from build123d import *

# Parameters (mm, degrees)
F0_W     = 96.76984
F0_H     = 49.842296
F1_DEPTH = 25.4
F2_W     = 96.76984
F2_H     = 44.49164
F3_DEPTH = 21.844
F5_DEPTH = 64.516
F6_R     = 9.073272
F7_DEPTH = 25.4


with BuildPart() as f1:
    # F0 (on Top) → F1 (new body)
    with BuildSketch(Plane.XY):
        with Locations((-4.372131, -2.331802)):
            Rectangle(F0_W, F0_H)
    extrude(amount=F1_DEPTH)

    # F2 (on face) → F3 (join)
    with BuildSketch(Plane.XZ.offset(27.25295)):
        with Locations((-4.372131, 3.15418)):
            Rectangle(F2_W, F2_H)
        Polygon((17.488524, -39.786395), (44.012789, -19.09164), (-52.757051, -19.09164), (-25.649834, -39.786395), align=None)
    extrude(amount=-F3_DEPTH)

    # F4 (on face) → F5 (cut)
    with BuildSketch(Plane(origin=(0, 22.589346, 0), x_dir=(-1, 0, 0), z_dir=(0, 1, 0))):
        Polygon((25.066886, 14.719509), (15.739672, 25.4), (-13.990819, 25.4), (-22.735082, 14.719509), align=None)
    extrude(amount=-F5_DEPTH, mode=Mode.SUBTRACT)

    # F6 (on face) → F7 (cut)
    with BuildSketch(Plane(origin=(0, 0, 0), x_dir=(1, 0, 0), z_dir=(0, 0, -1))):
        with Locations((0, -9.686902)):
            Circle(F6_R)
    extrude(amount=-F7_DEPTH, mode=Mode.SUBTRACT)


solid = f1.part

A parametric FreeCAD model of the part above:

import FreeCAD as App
import Part
import Sketcher
from FreeCAD import Vector
Q = App.Units.Quantity

doc = App.newDocument("Part")
body = doc.addObject("PartDesign::Body", "Body")

# Sketch on XY plane
sketch1 = body.newObject("Sketcher::SketchObject", "Sketch")
sketch1.AttachmentSupport = (doc.getObject("XY_Plane"), [""])
sketch1.MapMode = "FlatFace"
sketch1.addGeometry(Part.LineSegment(Vector(-52.757051, 22.589346, 0), Vector(-52.757051, -27.25295, 0)), False)
sketch1.addGeometry(Part.LineSegment(Vector(-52.757051, -27.25295, 0), Vector(44.012789, -27.25295, 0)), False)
sketch1.addGeometry(Part.LineSegment(Vector(44.012789, -27.25295, 0), Vector(44.012789, 22.589346, 0)), False)
sketch1.addGeometry(Part.LineSegment(Vector(44.012789, 22.589346, 0), Vector(-52.757051, 22.589346, 0)), False)
sketch1.addConstraint(Sketcher.Constraint("Coincident", 0, 2, 1, 1))
sketch1.addConstraint(Sketcher.Constraint("Coincident", 1, 2, 2, 1))
sketch1.addConstraint(Sketcher.Constraint("Coincident", 2, 2, 3, 1))
sketch1.addConstraint(Sketcher.Constraint("Coincident", 3, 2, 0, 1))
sketch1.addConstraint(Sketcher.Constraint("Vertical", 0))
sketch1.addConstraint(Sketcher.Constraint("Horizontal", 1))
sketch1.addConstraint(Sketcher.Constraint("Vertical", 2))
sketch1.addConstraint(Sketcher.Constraint("Horizontal", 3))
sketch1.addConstraint(Sketcher.Constraint("DistanceX", 1, 1, 1, 2, Q("96.76984 mm")))
sketch1.addConstraint(Sketcher.Constraint("DistanceY", 0, 2, 0, 1, Q("49.842296 mm")))
sketch1.addConstraint(Sketcher.Constraint("DistanceX", 0, 2, -1, 1, Q("52.757051 mm")))
sketch1.addConstraint(Sketcher.Constraint("DistanceY", 0, 2, -1, 1, Q("27.25295 mm")))
pad1 = body.newObject("PartDesign::Pad", "Pad")
pad1.Profile = sketch1
pad1.Length = Q("1 in")

# Sketch on XZ plane
sketch2 = body.newObject("Sketcher::SketchObject", "Sketch001")
sketch2.AttachmentSupport = (doc.getObject("XZ_Plane"), [""])
sketch2.MapMode = "FlatFace"
sketch2.AttachmentOffset = App.Placement(Vector(0, 0, 27.25295), App.Rotation())
sketch2.addGeometry(Part.LineSegment(Vector(-52.757051, 25.4, 0), Vector(-52.757051, -19.09164, 0)), False)
sketch2.addGeometry(Part.LineSegment(Vector(-52.757051, -19.09164, 0), Vector(-25.649834, -39.786395, 0)), False)
sketch2.addGeometry(Part.LineSegment(Vector(-25.649834, -39.786395, 0), Vector(17.488524, -39.786395, 0)), False)
sketch2.addGeometry(Part.LineSegment(Vector(17.488524, -39.786395, 0), Vector(44.012789, -19.09164, 0)), False)
sketch2.addGeometry(Part.LineSegment(Vector(44.012789, -19.09164, 0), Vector(44.012789, 25.4, 0)), False)
sketch2.addGeometry(Part.LineSegment(Vector(44.012789, 25.4, 0), Vector(-52.757051, 25.4, 0)), False)
sketch2.addConstraint(Sketcher.Constraint("Coincident", 0, 2, 1, 1))
sketch2.addConstraint(Sketcher.Constraint("Coincident", 1, 2, 2, 1))
sketch2.addConstraint(Sketcher.Constraint("Coincident", 2, 2, 3, 1))
sketch2.addConstraint(Sketcher.Constraint("Coincident", 3, 2, 4, 1))
sketch2.addConstraint(Sketcher.Constraint("Coincident", 4, 2, 5, 1))
sketch2.addConstraint(Sketcher.Constraint("Coincident", 5, 2, 0, 1))
sketch2.addConstraint(Sketcher.Constraint("Vertical", 0))
sketch2.addConstraint(Sketcher.Constraint("Horizontal", 2))
sketch2.addConstraint(Sketcher.Constraint("Vertical", 4))
sketch2.addConstraint(Sketcher.Constraint("Horizontal", 5))
sketch2.addConstraint(Sketcher.Constraint("Horizontal", 0, 2, 3, 2))
sketch2.addConstraint(Sketcher.Constraint("DistanceY", -1, 1, 4, 2, Q("1 in")))
sketch2.addConstraint(Sketcher.Constraint("DistanceX", 5, 2, 5, 1, Q("96.76984 mm")))
sketch2.addConstraint(Sketcher.Constraint("DistanceY", 0, 2, 0, 1, Q("44.49164 mm")))
sketch2.addConstraint(Sketcher.Constraint("DistanceX", 2, 1, 2, 2, Q("43.138358 mm")))
sketch2.addConstraint(Sketcher.Constraint("DistanceX", 0, 2, -1, 1, Q("52.757051 mm")))
sketch2.addConstraint(Sketcher.Constraint("Distance", 1, Q("34.103872 mm")))
sketch2.addConstraint(Sketcher.Constraint("Distance", 3, Q("33.642377 mm")))
pad2 = body.newObject("PartDesign::Pad", "Pad001")
pad2.Profile = sketch2
pad2.Length = Q("0.86 in")
pad2.Reversed = True

# Sketch on XZ plane
sketch3 = body.newObject("Sketcher::SketchObject", "Sketch002")
sketch3.AttachmentSupport = (doc.getObject("XZ_Plane"), [""])
sketch3.MapMode = "FlatFace"
sketch3.AttachmentOffset = App.Placement(Vector(0, 0, -22.589346), App.Rotation())
sketch3.addGeometry(Part.LineSegment(Vector(-25.066886, 14.719509, 0), Vector(-15.739672, 25.4, 0)), False)
sketch3.addGeometry(Part.LineSegment(Vector(-15.739672, 25.4, 0), Vector(13.990819, 25.4, 0)), False)
sketch3.addGeometry(Part.LineSegment(Vector(13.990819, 25.4, 0), Vector(22.735082, 14.719509, 0)), False)
sketch3.addGeometry(Part.LineSegment(Vector(22.735082, 14.719509, 0), Vector(-25.066886, 14.719509, 0)), False)
sketch3.addConstraint(Sketcher.Constraint("Coincident", 0, 2, 1, 1))
sketch3.addConstraint(Sketcher.Constraint("Coincident", 1, 2, 2, 1))
sketch3.addConstraint(Sketcher.Constraint("Coincident", 2, 2, 3, 1))
sketch3.addConstraint(Sketcher.Constraint("Coincident", 3, 2, 0, 1))
sketch3.addConstraint(Sketcher.Constraint("Horizontal", 1))
sketch3.addConstraint(Sketcher.Constraint("Horizontal", 3))
sketch3.addConstraint(Sketcher.Constraint("DistanceY", -1, 1, 0, 2, Q("1 in")))
sketch3.addConstraint(Sketcher.Constraint("DistanceX", 1, 1, 1, 2, Q("29.730491 mm")))
sketch3.addConstraint(Sketcher.Constraint("DistanceX", 3, 2, 3, 1, Q("47.801968 mm")))
sketch3.addConstraint(Sketcher.Constraint("Distance", 0, Q("14.179909 mm")))
sketch3.addConstraint(Sketcher.Constraint("DistanceX", -1, 1, 1, 2, Q("13.990819 mm")))
sketch3.addConstraint(Sketcher.Constraint("DistanceX", -1, 1, 2, 2, Q("22.735082 mm")))
pocket1 = body.newObject("PartDesign::Pocket", "Pocket")
pocket1.Profile = sketch3
pocket1.Length = Q("2.54 in")
pocket1.Reversed = True

# Sketch on XY plane
sketch4 = body.newObject("Sketcher::SketchObject", "Sketch003")
sketch4.AttachmentSupport = (doc.getObject("XY_Plane"), [""])
sketch4.MapMode = "FlatFace"
sketch4.addGeometry(Part.Circle(Vector(0, 9.686902, 0), Vector(0, 0, 1), 9.073272), False)
sketch4.addConstraint(Sketcher.Constraint("PointOnObject", 0, 3, -2))
sketch4.addConstraint(Sketcher.Constraint("Diameter", 0, Q("18.146544 mm")))
sketch4.addConstraint(Sketcher.Constraint("DistanceY", -1, 1, 0, 3, Q("9.686902 mm")))
pocket2 = body.newObject("PartDesign::Pocket", "Pocket001")
pocket2.Profile = sketch4
pocket2.Length = Q("1 in")
pocket2.Reversed = True

doc.recompute()
